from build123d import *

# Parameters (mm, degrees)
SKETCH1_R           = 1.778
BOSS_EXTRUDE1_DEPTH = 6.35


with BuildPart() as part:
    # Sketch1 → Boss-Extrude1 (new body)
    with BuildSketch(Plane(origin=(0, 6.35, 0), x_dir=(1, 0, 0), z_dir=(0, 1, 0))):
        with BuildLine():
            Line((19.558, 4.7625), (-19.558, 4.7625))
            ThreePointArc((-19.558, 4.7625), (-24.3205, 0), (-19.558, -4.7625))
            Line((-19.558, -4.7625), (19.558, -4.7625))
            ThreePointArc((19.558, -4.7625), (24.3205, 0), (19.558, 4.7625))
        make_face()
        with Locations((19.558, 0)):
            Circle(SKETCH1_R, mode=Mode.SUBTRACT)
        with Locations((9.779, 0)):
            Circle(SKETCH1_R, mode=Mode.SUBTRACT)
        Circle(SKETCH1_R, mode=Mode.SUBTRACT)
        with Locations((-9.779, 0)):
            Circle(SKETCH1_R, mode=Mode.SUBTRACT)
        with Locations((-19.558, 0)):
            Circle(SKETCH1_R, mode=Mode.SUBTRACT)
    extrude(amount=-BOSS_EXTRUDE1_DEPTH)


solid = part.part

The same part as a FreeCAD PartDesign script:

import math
import FreeCAD as App
import Part
import Sketcher
from FreeCAD import Vector
Q = App.Units.Quantity

doc = App.newDocument("Part")
body = doc.addObject("PartDesign::Body", "Body")

sketch1 = body.newObject("Sketcher::SketchObject", "Sketch")
sketch1.AttachmentSupport = (doc.getObject("XZ_Plane"), [""])
sketch1.MapMode = "FlatFace"
sketch1.AttachmentOffset = App.Placement(Vector(0, 0, -0.25 * 25.4), App.Rotation())
sketch1.addGeometry(Part.LineSegment(Vector(19.6, -4.8, 0), Vector(-19.6, -4.8, 0)), False)
sketch1.addGeometry(Part.ArcOfCircle(Part.Circle(Vector(-19.6, 0, 0), Vector(0, 0, 1), 4.8), math.radians(90), math.radians(270)), False)
sketch1.addGeometry(Part.LineSegment(Vector(-19.6, 4.8, 0), Vector(19.6, 4.8, 0)), False)
sketch1.addGeometry(Part.ArcOfCircle(Part.Circle(Vector(19.6, 0, 0), Vector(0, 0, 1), 4.8), math.radians(-90), math.radians(90)), False)
sketch1.addGeometry(Part.Circle(Vector(-19.6, 0, 0), Vector(0, 0, 1), 1.8), False)
sketch1.addGeometry(Part.Circle(Vector(-9.8, 0, 0), Vector(0, 0, 1), 1.8), False)
sketch1.addGeometry(Part.Circle(Vector(0, 0, 0), Vector(0, 0, 1), 1.8), False)
sketch1.addGeometry(Part.Circle(Vector(9.8, 0, 0), Vector(0, 0, 1), 1.8), False)
sketch1.addGeometry(Part.Circle(Vector(19.6, 0, 0), Vector(0, 0, 1), 1.8), False)
sketch1.addConstraint(Sketcher.Constraint("Tangent", 0, 2, 1, 2))
sketch1.addConstraint(Sketcher.Constraint("Tangent", 1, 1, 2, 1))
sketch1.addConstraint(Sketcher.Constraint("Tangent", 2, 2, 3, 2))
sketch1.addConstraint(Sketcher.Constraint("Tangent", 3, 1, 0, 1))
sketch1.addConstraint(Sketcher.Constraint("Horizontal", 0))
sketch1.addConstraint(Sketcher.Constraint("Horizontal", 2))
sketch1.addConstraint(Sketcher.Constraint("Coincident", 6, 3, -1, 1))
sketch1.addConstraint(Sketcher.Constraint("Coincident", 4, 3, 1, 3))
sketch1.addConstraint(Sketcher.Constraint("Coincident", 8, 3, 3, 3))
sketch1.addConstraint(Sketcher.Constraint("Equal", 4, 5))
sketch1.addConstraint(Sketcher.Constraint("Equal", 5, 6))
sketch1.addConstraint(Sketcher.Constraint("Equal", 6, 7))
sketch1.addConstraint(Sketcher.Constraint("Equal", 7, 8))
sketch1.addConstraint(Sketcher.Constraint("Symmetric", 1, 3, 3, 3, -1, 1))
sketch1.addConstraint(Sketcher.Constraint("Symmetric", 5, 3, 7, 3, -1, 1))
sketch1.addConstraint(Sketcher.Constraint("PointOnObject", 5, 3, -1))
sketch1.addConstraint(Sketcher.Constraint("Diameter", 4, Q("0.14 in")))
sketch1.addConstraint(Sketcher.Constraint("Radius", 1, Q("0.1875 in")))
sketch1.addConstraint(Sketcher.Constraint("DistanceX", 0, 2, 0, 1, Q("1.54 in")))
sketch1.addConstraint(Sketcher.Constraint("DistanceX", 5, 3, 7, 3, Q("0.77 in")))
pad1 = body.newObject("PartDesign::Pad", "Pad")
pad1.Profile = sketch1
pad1.Length = Q("0.25 in")

doc.recompute()
